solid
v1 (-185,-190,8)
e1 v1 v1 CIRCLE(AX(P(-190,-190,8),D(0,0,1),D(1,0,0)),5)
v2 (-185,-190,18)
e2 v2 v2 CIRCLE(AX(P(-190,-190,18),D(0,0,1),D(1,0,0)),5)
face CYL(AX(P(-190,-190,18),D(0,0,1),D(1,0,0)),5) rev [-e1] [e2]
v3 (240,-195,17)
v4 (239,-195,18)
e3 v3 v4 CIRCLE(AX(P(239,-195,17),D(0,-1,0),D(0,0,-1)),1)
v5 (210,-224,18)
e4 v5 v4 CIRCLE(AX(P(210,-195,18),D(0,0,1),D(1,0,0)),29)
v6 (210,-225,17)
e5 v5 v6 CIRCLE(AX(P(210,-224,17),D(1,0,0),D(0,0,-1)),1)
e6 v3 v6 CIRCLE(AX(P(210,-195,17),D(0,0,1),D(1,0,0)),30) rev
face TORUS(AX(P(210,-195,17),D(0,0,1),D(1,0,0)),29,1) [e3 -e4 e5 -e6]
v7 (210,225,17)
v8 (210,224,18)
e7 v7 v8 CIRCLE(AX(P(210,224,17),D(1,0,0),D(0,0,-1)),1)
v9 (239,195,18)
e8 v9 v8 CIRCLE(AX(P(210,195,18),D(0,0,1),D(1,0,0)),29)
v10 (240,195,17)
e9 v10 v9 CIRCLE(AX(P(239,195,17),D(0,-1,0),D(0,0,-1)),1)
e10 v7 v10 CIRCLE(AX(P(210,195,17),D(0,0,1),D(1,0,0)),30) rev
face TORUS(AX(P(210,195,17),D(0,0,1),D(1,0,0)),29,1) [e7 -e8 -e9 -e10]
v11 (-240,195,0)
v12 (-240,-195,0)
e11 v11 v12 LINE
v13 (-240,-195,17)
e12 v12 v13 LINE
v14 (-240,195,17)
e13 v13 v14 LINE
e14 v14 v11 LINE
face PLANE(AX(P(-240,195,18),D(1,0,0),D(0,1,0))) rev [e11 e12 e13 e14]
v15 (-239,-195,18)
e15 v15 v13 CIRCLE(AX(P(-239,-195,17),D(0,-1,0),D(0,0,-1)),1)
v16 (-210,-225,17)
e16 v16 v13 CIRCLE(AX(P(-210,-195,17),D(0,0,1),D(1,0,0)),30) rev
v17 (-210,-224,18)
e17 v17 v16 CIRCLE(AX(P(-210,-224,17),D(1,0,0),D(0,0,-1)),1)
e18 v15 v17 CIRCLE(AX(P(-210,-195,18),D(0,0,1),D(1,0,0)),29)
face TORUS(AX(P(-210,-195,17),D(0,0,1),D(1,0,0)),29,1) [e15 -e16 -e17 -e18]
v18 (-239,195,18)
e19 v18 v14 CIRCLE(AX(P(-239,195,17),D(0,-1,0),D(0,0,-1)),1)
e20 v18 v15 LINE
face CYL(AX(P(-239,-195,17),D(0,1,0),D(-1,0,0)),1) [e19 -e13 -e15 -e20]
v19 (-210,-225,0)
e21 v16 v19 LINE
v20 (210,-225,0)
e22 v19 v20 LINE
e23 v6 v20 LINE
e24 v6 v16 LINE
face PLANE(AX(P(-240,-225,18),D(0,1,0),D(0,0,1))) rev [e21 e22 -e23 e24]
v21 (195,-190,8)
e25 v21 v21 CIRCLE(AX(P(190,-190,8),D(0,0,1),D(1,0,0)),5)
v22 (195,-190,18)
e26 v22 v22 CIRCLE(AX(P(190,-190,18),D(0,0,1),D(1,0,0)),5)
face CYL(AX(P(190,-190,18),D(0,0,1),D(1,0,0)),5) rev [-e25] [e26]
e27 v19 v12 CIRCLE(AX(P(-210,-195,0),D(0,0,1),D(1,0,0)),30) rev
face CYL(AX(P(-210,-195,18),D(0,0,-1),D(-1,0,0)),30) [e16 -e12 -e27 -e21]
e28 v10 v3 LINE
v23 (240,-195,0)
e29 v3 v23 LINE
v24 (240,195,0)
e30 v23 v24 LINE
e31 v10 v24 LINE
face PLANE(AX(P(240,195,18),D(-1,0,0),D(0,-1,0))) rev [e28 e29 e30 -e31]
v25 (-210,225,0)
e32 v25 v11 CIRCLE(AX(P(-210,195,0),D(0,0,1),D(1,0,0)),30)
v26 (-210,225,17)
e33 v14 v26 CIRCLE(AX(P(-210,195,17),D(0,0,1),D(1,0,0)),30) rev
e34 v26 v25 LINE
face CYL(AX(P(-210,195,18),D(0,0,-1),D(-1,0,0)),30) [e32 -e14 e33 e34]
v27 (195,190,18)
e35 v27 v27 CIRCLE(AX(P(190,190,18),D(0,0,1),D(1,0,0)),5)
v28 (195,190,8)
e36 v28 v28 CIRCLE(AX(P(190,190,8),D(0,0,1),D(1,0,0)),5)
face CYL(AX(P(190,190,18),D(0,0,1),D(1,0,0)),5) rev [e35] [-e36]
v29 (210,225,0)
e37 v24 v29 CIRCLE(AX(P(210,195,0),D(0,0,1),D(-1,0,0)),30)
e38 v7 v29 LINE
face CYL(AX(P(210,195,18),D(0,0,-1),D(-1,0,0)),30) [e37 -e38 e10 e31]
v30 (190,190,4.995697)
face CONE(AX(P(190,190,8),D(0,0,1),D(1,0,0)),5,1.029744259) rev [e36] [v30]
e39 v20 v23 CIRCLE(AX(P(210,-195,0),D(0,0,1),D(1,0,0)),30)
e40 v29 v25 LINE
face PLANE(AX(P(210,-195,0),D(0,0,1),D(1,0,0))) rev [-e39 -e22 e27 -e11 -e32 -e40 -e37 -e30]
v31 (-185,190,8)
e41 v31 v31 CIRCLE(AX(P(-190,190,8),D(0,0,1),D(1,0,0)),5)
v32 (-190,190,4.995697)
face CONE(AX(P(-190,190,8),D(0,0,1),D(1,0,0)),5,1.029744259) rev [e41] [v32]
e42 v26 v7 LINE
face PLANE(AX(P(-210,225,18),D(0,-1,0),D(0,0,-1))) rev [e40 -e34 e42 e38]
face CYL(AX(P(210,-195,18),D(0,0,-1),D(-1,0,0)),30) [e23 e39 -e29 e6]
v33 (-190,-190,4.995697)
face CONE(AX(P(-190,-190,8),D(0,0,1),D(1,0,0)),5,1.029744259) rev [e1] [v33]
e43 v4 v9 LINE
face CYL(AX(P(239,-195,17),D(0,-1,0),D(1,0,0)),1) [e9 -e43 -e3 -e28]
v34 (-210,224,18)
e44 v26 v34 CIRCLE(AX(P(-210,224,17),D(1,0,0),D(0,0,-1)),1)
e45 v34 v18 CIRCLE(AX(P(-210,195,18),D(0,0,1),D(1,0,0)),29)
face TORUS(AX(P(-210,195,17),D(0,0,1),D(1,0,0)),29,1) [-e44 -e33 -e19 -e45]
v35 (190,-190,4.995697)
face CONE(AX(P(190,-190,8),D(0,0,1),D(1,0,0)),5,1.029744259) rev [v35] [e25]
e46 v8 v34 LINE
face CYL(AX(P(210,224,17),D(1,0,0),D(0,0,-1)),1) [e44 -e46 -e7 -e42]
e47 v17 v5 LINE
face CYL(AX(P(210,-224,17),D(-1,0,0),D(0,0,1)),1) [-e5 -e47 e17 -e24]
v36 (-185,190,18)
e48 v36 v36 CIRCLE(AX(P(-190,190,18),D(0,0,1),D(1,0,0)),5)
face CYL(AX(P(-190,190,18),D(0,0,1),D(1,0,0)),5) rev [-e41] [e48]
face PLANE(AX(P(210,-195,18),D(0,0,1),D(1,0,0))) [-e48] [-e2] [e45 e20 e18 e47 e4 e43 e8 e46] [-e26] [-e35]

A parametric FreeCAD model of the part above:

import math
import FreeCAD as App
import Part
import Sketcher
from FreeCAD import Vector


def edges_at(feature, points):
    """Names of the edges that pass closest to the given points."""
    edges = feature.Shape.Edges
    near = lambda p: min(range(len(edges)), key=lambda i: edges[i].distToShape(Part.Vertex(*p))[0])
    return sorted({f"Edge{near(p) + 1}" for p in points})

doc = App.newDocument("Part")
params = doc.addObject("Spreadsheet::Sheet", "Params")
for row, (alias, value) in enumerate([
    ("sketch1_radius", "30 mm"),
    ("sketch1_width", "420 mm"),
    ("pad1_length", "18 mm"),
    ("sketch2_diameter", "10 mm"),
    ("hole_diameter", "10 mm"),
    ("hole_depth", "10 mm"),
    ("fillet_radius", "30 mm"),
    ("fillet2_radius", "1 mm"),
], start=1):
    params.set(f"A{row}", alias)
    params.set(f"B{row}", "=" + value)
    params.setAlias(f"B{row}", alias)

body = doc.addObject("PartDesign::Body", "Body")

# Sketch on XY plane
sketch1 = body.newObject("Sketcher::SketchObject", "Sketch")
sketch1.AttachmentSupport = (doc.getObject("XY_Plane"), [""])
sketch1.MapMode = "FlatFace"
sketch1.addGeometry(Part.LineSegment(Vector(210, 225, 0), Vector(-210, 225, 0)), False)
sketch1.addGeometry(Part.ArcOfCircle(Part.Circle(Vector(-210, 195, 0), Vector(0, 0, 1), 30), math.radians(90), math.radians(180)), False)
sketch1.addGeometry(Part.LineSegment(Vector(-240, 195, 0), Vector(-240, -225, 0)), False)
sketch1.addGeometry(Part.LineSegment(Vector(-240, -225, 0), Vector(210, -225, 0)), False)
sketch1.addGeometry(Part.ArcOfCircle(Part.Circle(Vector(210, -195, 0), Vector(0, 0, 1), 30), math.radians(-90), math.radians(0)), False)
sketch1.addGeometry(Part.LineSegment(Vector(240, -195, 0), Vector(240, 195, 0)), False)
sketch1.addGeometry(Part.ArcOfCircle(Part.Circle(Vector(210, 195, 0), Vector(0, 0, 1), 30), math.radians(0), math.radians(90)), False)
sketch1.addConstraint(Sketcher.Constraint("Tangent", 0, 2, 1, 1))
sketch1.addConstraint(Sketcher.Constraint("Tangent", 1, 2, 2, 1))
sketch1.addConstraint(Sketcher.Constraint("Coincident", 2, 2, 3, 1))
sketch1.addConstraint(Sketcher.Constraint("Tangent", 3, 2, 4, 1))
sketch1.addConstraint(Sketcher.Constraint("Tangent", 4, 2, 5, 1))
sketch1.addConstraint(Sketcher.Constraint("Tangent", 5, 2, 6, 1))
sketch1.addConstraint(Sketcher.Constraint("Tangent", 6, 2, 0, 1))
sketch1.addConstraint(Sketcher.Constraint("Horizontal", 0))
sketch1.addConstraint(Sketcher.Constraint("Vertical", 2))
sketch1.addConstraint(Sketcher.Constraint("Horizontal", 3))
sketch1.addConstraint(Sketcher.Constraint("Vertical", 5))
sketch1.addConstraint(Sketcher.Constraint("Equal", 1, 4))
sketch1.addConstraint(Sketcher.Constraint("Equal", 4, 6))
sketch1.addConstraint(Sketcher.Constraint("Symmetric", 1, 3, 4, 3, -1, 1))
sketch1.addConstraint(Sketcher.Constraint("Equal", 0, 2))
sketch1.addConstraint(Sketcher.Constraint("Radius", 1, 30.0))
sketch1.addConstraint(Sketcher.Constraint("DistanceX", 0, 2, 0, 1, 420.0))
sketch1.setExpression("Constraints[15]", "Params.sketch1_radius")
sketch1.setExpression("Constraints[16]", "Params.sketch1_width")
pad1 = body.newObject("PartDesign::Pad", "Pad")
pad1.Profile = sketch1
pad1.setExpression("Length", "Params.pad1_length")

# Sketch on XY plane
sketch2 = body.newObject("Sketcher::SketchObject", "Sketch001")
sketch2.AttachmentSupport = (doc.getObject("XY_Plane"), [""])
sketch2.MapMode = "FlatFace"
sketch2.AttachmentOffset = App.Placement(Vector(0, 0, 18), App.Rotation())
sketch2.addGeometry(Part.Circle(Vector(-190, 190, 0), Vector(0, 0, 1), 5), False)
sketch2.addGeometry(Part.Circle(Vector(190, 190, 0), Vector(0, 0, 1), 5), False)
sketch2.addGeometry(Part.Circle(Vector(190, -190, 0), Vector(0, 0, 1), 5), False)
sketch2.addGeometry(Part.Circle(Vector(-190, -190, 0), Vector(0, 0, 1), 5), False)
sketch2.addConstraint(Sketcher.Constraint("Equal", 0, 1))
sketch2.addConstraint(Sketcher.Constraint("Equal", 1, 2))
sketch2.addConstraint(Sketcher.Constraint("Equal", 2, 3))
sketch2.addConstraint(Sketcher.Constraint("Symmetric", 0, 3, 2, 3, -1, 1))
sketch2.addConstraint(Sketcher.Constraint("Symmetric", 1, 3, 3, 3, -1, 1))
sketch2.addConstraint(Sketcher.Constraint("Symmetric", 0, 3, 1, 3, -2))
sketch2.addConstraint(Sketcher.Constraint("Diameter", 0, 10.0))
sketch2.addConstraint(Sketcher.Constraint("DistanceX", 0, 3, -1, 1, 190.0))
sketch2.addConstraint(Sketcher.Constraint("DistanceY", -1, 1, 0, 3, 190.0))
sketch2.setExpression("Constraints[6]", "Params.sketch2_diameter")
doc.recompute()
hole = body.newObject("PartDesign::Hole", "Hole")
hole.Profile = sketch2
hole.ThreadType = "None"
hole.setExpression("Diameter", "Params.hole_diameter")
hole.DepthType = "Dimension"
hole.setExpression("Depth", "Params.hole_depth")
hole.DrillPoint = "Angled"
hole.DrillPointAngle = 118
doc.recompute()

fillet = body.newObject("PartDesign::Fillet", "Fillet")
fillet.Base = (hole, edges_at(hole, [(-240, -225, 9)]))
fillet.setExpression("Radius", "Params.fillet_radius")
doc.recompute()

fillet2 = body.newObject("PartDesign::Fillet", "Fillet001")
fillet2.Base = (fillet, edges_at(fillet, [
    (240, 0, 18),
    (231.213, 216.213, 18),
    (0, 225, 18),
    (-231.213, 216.213, 18),
    (-240, 0, 18),
    (0, -225, 18),
    (-231.213, -216.213, 18),
    (231.213, -216.213, 18),
]))
fillet2.setExpression("Radius", "Params.fillet2_radius")

doc.recompute()
